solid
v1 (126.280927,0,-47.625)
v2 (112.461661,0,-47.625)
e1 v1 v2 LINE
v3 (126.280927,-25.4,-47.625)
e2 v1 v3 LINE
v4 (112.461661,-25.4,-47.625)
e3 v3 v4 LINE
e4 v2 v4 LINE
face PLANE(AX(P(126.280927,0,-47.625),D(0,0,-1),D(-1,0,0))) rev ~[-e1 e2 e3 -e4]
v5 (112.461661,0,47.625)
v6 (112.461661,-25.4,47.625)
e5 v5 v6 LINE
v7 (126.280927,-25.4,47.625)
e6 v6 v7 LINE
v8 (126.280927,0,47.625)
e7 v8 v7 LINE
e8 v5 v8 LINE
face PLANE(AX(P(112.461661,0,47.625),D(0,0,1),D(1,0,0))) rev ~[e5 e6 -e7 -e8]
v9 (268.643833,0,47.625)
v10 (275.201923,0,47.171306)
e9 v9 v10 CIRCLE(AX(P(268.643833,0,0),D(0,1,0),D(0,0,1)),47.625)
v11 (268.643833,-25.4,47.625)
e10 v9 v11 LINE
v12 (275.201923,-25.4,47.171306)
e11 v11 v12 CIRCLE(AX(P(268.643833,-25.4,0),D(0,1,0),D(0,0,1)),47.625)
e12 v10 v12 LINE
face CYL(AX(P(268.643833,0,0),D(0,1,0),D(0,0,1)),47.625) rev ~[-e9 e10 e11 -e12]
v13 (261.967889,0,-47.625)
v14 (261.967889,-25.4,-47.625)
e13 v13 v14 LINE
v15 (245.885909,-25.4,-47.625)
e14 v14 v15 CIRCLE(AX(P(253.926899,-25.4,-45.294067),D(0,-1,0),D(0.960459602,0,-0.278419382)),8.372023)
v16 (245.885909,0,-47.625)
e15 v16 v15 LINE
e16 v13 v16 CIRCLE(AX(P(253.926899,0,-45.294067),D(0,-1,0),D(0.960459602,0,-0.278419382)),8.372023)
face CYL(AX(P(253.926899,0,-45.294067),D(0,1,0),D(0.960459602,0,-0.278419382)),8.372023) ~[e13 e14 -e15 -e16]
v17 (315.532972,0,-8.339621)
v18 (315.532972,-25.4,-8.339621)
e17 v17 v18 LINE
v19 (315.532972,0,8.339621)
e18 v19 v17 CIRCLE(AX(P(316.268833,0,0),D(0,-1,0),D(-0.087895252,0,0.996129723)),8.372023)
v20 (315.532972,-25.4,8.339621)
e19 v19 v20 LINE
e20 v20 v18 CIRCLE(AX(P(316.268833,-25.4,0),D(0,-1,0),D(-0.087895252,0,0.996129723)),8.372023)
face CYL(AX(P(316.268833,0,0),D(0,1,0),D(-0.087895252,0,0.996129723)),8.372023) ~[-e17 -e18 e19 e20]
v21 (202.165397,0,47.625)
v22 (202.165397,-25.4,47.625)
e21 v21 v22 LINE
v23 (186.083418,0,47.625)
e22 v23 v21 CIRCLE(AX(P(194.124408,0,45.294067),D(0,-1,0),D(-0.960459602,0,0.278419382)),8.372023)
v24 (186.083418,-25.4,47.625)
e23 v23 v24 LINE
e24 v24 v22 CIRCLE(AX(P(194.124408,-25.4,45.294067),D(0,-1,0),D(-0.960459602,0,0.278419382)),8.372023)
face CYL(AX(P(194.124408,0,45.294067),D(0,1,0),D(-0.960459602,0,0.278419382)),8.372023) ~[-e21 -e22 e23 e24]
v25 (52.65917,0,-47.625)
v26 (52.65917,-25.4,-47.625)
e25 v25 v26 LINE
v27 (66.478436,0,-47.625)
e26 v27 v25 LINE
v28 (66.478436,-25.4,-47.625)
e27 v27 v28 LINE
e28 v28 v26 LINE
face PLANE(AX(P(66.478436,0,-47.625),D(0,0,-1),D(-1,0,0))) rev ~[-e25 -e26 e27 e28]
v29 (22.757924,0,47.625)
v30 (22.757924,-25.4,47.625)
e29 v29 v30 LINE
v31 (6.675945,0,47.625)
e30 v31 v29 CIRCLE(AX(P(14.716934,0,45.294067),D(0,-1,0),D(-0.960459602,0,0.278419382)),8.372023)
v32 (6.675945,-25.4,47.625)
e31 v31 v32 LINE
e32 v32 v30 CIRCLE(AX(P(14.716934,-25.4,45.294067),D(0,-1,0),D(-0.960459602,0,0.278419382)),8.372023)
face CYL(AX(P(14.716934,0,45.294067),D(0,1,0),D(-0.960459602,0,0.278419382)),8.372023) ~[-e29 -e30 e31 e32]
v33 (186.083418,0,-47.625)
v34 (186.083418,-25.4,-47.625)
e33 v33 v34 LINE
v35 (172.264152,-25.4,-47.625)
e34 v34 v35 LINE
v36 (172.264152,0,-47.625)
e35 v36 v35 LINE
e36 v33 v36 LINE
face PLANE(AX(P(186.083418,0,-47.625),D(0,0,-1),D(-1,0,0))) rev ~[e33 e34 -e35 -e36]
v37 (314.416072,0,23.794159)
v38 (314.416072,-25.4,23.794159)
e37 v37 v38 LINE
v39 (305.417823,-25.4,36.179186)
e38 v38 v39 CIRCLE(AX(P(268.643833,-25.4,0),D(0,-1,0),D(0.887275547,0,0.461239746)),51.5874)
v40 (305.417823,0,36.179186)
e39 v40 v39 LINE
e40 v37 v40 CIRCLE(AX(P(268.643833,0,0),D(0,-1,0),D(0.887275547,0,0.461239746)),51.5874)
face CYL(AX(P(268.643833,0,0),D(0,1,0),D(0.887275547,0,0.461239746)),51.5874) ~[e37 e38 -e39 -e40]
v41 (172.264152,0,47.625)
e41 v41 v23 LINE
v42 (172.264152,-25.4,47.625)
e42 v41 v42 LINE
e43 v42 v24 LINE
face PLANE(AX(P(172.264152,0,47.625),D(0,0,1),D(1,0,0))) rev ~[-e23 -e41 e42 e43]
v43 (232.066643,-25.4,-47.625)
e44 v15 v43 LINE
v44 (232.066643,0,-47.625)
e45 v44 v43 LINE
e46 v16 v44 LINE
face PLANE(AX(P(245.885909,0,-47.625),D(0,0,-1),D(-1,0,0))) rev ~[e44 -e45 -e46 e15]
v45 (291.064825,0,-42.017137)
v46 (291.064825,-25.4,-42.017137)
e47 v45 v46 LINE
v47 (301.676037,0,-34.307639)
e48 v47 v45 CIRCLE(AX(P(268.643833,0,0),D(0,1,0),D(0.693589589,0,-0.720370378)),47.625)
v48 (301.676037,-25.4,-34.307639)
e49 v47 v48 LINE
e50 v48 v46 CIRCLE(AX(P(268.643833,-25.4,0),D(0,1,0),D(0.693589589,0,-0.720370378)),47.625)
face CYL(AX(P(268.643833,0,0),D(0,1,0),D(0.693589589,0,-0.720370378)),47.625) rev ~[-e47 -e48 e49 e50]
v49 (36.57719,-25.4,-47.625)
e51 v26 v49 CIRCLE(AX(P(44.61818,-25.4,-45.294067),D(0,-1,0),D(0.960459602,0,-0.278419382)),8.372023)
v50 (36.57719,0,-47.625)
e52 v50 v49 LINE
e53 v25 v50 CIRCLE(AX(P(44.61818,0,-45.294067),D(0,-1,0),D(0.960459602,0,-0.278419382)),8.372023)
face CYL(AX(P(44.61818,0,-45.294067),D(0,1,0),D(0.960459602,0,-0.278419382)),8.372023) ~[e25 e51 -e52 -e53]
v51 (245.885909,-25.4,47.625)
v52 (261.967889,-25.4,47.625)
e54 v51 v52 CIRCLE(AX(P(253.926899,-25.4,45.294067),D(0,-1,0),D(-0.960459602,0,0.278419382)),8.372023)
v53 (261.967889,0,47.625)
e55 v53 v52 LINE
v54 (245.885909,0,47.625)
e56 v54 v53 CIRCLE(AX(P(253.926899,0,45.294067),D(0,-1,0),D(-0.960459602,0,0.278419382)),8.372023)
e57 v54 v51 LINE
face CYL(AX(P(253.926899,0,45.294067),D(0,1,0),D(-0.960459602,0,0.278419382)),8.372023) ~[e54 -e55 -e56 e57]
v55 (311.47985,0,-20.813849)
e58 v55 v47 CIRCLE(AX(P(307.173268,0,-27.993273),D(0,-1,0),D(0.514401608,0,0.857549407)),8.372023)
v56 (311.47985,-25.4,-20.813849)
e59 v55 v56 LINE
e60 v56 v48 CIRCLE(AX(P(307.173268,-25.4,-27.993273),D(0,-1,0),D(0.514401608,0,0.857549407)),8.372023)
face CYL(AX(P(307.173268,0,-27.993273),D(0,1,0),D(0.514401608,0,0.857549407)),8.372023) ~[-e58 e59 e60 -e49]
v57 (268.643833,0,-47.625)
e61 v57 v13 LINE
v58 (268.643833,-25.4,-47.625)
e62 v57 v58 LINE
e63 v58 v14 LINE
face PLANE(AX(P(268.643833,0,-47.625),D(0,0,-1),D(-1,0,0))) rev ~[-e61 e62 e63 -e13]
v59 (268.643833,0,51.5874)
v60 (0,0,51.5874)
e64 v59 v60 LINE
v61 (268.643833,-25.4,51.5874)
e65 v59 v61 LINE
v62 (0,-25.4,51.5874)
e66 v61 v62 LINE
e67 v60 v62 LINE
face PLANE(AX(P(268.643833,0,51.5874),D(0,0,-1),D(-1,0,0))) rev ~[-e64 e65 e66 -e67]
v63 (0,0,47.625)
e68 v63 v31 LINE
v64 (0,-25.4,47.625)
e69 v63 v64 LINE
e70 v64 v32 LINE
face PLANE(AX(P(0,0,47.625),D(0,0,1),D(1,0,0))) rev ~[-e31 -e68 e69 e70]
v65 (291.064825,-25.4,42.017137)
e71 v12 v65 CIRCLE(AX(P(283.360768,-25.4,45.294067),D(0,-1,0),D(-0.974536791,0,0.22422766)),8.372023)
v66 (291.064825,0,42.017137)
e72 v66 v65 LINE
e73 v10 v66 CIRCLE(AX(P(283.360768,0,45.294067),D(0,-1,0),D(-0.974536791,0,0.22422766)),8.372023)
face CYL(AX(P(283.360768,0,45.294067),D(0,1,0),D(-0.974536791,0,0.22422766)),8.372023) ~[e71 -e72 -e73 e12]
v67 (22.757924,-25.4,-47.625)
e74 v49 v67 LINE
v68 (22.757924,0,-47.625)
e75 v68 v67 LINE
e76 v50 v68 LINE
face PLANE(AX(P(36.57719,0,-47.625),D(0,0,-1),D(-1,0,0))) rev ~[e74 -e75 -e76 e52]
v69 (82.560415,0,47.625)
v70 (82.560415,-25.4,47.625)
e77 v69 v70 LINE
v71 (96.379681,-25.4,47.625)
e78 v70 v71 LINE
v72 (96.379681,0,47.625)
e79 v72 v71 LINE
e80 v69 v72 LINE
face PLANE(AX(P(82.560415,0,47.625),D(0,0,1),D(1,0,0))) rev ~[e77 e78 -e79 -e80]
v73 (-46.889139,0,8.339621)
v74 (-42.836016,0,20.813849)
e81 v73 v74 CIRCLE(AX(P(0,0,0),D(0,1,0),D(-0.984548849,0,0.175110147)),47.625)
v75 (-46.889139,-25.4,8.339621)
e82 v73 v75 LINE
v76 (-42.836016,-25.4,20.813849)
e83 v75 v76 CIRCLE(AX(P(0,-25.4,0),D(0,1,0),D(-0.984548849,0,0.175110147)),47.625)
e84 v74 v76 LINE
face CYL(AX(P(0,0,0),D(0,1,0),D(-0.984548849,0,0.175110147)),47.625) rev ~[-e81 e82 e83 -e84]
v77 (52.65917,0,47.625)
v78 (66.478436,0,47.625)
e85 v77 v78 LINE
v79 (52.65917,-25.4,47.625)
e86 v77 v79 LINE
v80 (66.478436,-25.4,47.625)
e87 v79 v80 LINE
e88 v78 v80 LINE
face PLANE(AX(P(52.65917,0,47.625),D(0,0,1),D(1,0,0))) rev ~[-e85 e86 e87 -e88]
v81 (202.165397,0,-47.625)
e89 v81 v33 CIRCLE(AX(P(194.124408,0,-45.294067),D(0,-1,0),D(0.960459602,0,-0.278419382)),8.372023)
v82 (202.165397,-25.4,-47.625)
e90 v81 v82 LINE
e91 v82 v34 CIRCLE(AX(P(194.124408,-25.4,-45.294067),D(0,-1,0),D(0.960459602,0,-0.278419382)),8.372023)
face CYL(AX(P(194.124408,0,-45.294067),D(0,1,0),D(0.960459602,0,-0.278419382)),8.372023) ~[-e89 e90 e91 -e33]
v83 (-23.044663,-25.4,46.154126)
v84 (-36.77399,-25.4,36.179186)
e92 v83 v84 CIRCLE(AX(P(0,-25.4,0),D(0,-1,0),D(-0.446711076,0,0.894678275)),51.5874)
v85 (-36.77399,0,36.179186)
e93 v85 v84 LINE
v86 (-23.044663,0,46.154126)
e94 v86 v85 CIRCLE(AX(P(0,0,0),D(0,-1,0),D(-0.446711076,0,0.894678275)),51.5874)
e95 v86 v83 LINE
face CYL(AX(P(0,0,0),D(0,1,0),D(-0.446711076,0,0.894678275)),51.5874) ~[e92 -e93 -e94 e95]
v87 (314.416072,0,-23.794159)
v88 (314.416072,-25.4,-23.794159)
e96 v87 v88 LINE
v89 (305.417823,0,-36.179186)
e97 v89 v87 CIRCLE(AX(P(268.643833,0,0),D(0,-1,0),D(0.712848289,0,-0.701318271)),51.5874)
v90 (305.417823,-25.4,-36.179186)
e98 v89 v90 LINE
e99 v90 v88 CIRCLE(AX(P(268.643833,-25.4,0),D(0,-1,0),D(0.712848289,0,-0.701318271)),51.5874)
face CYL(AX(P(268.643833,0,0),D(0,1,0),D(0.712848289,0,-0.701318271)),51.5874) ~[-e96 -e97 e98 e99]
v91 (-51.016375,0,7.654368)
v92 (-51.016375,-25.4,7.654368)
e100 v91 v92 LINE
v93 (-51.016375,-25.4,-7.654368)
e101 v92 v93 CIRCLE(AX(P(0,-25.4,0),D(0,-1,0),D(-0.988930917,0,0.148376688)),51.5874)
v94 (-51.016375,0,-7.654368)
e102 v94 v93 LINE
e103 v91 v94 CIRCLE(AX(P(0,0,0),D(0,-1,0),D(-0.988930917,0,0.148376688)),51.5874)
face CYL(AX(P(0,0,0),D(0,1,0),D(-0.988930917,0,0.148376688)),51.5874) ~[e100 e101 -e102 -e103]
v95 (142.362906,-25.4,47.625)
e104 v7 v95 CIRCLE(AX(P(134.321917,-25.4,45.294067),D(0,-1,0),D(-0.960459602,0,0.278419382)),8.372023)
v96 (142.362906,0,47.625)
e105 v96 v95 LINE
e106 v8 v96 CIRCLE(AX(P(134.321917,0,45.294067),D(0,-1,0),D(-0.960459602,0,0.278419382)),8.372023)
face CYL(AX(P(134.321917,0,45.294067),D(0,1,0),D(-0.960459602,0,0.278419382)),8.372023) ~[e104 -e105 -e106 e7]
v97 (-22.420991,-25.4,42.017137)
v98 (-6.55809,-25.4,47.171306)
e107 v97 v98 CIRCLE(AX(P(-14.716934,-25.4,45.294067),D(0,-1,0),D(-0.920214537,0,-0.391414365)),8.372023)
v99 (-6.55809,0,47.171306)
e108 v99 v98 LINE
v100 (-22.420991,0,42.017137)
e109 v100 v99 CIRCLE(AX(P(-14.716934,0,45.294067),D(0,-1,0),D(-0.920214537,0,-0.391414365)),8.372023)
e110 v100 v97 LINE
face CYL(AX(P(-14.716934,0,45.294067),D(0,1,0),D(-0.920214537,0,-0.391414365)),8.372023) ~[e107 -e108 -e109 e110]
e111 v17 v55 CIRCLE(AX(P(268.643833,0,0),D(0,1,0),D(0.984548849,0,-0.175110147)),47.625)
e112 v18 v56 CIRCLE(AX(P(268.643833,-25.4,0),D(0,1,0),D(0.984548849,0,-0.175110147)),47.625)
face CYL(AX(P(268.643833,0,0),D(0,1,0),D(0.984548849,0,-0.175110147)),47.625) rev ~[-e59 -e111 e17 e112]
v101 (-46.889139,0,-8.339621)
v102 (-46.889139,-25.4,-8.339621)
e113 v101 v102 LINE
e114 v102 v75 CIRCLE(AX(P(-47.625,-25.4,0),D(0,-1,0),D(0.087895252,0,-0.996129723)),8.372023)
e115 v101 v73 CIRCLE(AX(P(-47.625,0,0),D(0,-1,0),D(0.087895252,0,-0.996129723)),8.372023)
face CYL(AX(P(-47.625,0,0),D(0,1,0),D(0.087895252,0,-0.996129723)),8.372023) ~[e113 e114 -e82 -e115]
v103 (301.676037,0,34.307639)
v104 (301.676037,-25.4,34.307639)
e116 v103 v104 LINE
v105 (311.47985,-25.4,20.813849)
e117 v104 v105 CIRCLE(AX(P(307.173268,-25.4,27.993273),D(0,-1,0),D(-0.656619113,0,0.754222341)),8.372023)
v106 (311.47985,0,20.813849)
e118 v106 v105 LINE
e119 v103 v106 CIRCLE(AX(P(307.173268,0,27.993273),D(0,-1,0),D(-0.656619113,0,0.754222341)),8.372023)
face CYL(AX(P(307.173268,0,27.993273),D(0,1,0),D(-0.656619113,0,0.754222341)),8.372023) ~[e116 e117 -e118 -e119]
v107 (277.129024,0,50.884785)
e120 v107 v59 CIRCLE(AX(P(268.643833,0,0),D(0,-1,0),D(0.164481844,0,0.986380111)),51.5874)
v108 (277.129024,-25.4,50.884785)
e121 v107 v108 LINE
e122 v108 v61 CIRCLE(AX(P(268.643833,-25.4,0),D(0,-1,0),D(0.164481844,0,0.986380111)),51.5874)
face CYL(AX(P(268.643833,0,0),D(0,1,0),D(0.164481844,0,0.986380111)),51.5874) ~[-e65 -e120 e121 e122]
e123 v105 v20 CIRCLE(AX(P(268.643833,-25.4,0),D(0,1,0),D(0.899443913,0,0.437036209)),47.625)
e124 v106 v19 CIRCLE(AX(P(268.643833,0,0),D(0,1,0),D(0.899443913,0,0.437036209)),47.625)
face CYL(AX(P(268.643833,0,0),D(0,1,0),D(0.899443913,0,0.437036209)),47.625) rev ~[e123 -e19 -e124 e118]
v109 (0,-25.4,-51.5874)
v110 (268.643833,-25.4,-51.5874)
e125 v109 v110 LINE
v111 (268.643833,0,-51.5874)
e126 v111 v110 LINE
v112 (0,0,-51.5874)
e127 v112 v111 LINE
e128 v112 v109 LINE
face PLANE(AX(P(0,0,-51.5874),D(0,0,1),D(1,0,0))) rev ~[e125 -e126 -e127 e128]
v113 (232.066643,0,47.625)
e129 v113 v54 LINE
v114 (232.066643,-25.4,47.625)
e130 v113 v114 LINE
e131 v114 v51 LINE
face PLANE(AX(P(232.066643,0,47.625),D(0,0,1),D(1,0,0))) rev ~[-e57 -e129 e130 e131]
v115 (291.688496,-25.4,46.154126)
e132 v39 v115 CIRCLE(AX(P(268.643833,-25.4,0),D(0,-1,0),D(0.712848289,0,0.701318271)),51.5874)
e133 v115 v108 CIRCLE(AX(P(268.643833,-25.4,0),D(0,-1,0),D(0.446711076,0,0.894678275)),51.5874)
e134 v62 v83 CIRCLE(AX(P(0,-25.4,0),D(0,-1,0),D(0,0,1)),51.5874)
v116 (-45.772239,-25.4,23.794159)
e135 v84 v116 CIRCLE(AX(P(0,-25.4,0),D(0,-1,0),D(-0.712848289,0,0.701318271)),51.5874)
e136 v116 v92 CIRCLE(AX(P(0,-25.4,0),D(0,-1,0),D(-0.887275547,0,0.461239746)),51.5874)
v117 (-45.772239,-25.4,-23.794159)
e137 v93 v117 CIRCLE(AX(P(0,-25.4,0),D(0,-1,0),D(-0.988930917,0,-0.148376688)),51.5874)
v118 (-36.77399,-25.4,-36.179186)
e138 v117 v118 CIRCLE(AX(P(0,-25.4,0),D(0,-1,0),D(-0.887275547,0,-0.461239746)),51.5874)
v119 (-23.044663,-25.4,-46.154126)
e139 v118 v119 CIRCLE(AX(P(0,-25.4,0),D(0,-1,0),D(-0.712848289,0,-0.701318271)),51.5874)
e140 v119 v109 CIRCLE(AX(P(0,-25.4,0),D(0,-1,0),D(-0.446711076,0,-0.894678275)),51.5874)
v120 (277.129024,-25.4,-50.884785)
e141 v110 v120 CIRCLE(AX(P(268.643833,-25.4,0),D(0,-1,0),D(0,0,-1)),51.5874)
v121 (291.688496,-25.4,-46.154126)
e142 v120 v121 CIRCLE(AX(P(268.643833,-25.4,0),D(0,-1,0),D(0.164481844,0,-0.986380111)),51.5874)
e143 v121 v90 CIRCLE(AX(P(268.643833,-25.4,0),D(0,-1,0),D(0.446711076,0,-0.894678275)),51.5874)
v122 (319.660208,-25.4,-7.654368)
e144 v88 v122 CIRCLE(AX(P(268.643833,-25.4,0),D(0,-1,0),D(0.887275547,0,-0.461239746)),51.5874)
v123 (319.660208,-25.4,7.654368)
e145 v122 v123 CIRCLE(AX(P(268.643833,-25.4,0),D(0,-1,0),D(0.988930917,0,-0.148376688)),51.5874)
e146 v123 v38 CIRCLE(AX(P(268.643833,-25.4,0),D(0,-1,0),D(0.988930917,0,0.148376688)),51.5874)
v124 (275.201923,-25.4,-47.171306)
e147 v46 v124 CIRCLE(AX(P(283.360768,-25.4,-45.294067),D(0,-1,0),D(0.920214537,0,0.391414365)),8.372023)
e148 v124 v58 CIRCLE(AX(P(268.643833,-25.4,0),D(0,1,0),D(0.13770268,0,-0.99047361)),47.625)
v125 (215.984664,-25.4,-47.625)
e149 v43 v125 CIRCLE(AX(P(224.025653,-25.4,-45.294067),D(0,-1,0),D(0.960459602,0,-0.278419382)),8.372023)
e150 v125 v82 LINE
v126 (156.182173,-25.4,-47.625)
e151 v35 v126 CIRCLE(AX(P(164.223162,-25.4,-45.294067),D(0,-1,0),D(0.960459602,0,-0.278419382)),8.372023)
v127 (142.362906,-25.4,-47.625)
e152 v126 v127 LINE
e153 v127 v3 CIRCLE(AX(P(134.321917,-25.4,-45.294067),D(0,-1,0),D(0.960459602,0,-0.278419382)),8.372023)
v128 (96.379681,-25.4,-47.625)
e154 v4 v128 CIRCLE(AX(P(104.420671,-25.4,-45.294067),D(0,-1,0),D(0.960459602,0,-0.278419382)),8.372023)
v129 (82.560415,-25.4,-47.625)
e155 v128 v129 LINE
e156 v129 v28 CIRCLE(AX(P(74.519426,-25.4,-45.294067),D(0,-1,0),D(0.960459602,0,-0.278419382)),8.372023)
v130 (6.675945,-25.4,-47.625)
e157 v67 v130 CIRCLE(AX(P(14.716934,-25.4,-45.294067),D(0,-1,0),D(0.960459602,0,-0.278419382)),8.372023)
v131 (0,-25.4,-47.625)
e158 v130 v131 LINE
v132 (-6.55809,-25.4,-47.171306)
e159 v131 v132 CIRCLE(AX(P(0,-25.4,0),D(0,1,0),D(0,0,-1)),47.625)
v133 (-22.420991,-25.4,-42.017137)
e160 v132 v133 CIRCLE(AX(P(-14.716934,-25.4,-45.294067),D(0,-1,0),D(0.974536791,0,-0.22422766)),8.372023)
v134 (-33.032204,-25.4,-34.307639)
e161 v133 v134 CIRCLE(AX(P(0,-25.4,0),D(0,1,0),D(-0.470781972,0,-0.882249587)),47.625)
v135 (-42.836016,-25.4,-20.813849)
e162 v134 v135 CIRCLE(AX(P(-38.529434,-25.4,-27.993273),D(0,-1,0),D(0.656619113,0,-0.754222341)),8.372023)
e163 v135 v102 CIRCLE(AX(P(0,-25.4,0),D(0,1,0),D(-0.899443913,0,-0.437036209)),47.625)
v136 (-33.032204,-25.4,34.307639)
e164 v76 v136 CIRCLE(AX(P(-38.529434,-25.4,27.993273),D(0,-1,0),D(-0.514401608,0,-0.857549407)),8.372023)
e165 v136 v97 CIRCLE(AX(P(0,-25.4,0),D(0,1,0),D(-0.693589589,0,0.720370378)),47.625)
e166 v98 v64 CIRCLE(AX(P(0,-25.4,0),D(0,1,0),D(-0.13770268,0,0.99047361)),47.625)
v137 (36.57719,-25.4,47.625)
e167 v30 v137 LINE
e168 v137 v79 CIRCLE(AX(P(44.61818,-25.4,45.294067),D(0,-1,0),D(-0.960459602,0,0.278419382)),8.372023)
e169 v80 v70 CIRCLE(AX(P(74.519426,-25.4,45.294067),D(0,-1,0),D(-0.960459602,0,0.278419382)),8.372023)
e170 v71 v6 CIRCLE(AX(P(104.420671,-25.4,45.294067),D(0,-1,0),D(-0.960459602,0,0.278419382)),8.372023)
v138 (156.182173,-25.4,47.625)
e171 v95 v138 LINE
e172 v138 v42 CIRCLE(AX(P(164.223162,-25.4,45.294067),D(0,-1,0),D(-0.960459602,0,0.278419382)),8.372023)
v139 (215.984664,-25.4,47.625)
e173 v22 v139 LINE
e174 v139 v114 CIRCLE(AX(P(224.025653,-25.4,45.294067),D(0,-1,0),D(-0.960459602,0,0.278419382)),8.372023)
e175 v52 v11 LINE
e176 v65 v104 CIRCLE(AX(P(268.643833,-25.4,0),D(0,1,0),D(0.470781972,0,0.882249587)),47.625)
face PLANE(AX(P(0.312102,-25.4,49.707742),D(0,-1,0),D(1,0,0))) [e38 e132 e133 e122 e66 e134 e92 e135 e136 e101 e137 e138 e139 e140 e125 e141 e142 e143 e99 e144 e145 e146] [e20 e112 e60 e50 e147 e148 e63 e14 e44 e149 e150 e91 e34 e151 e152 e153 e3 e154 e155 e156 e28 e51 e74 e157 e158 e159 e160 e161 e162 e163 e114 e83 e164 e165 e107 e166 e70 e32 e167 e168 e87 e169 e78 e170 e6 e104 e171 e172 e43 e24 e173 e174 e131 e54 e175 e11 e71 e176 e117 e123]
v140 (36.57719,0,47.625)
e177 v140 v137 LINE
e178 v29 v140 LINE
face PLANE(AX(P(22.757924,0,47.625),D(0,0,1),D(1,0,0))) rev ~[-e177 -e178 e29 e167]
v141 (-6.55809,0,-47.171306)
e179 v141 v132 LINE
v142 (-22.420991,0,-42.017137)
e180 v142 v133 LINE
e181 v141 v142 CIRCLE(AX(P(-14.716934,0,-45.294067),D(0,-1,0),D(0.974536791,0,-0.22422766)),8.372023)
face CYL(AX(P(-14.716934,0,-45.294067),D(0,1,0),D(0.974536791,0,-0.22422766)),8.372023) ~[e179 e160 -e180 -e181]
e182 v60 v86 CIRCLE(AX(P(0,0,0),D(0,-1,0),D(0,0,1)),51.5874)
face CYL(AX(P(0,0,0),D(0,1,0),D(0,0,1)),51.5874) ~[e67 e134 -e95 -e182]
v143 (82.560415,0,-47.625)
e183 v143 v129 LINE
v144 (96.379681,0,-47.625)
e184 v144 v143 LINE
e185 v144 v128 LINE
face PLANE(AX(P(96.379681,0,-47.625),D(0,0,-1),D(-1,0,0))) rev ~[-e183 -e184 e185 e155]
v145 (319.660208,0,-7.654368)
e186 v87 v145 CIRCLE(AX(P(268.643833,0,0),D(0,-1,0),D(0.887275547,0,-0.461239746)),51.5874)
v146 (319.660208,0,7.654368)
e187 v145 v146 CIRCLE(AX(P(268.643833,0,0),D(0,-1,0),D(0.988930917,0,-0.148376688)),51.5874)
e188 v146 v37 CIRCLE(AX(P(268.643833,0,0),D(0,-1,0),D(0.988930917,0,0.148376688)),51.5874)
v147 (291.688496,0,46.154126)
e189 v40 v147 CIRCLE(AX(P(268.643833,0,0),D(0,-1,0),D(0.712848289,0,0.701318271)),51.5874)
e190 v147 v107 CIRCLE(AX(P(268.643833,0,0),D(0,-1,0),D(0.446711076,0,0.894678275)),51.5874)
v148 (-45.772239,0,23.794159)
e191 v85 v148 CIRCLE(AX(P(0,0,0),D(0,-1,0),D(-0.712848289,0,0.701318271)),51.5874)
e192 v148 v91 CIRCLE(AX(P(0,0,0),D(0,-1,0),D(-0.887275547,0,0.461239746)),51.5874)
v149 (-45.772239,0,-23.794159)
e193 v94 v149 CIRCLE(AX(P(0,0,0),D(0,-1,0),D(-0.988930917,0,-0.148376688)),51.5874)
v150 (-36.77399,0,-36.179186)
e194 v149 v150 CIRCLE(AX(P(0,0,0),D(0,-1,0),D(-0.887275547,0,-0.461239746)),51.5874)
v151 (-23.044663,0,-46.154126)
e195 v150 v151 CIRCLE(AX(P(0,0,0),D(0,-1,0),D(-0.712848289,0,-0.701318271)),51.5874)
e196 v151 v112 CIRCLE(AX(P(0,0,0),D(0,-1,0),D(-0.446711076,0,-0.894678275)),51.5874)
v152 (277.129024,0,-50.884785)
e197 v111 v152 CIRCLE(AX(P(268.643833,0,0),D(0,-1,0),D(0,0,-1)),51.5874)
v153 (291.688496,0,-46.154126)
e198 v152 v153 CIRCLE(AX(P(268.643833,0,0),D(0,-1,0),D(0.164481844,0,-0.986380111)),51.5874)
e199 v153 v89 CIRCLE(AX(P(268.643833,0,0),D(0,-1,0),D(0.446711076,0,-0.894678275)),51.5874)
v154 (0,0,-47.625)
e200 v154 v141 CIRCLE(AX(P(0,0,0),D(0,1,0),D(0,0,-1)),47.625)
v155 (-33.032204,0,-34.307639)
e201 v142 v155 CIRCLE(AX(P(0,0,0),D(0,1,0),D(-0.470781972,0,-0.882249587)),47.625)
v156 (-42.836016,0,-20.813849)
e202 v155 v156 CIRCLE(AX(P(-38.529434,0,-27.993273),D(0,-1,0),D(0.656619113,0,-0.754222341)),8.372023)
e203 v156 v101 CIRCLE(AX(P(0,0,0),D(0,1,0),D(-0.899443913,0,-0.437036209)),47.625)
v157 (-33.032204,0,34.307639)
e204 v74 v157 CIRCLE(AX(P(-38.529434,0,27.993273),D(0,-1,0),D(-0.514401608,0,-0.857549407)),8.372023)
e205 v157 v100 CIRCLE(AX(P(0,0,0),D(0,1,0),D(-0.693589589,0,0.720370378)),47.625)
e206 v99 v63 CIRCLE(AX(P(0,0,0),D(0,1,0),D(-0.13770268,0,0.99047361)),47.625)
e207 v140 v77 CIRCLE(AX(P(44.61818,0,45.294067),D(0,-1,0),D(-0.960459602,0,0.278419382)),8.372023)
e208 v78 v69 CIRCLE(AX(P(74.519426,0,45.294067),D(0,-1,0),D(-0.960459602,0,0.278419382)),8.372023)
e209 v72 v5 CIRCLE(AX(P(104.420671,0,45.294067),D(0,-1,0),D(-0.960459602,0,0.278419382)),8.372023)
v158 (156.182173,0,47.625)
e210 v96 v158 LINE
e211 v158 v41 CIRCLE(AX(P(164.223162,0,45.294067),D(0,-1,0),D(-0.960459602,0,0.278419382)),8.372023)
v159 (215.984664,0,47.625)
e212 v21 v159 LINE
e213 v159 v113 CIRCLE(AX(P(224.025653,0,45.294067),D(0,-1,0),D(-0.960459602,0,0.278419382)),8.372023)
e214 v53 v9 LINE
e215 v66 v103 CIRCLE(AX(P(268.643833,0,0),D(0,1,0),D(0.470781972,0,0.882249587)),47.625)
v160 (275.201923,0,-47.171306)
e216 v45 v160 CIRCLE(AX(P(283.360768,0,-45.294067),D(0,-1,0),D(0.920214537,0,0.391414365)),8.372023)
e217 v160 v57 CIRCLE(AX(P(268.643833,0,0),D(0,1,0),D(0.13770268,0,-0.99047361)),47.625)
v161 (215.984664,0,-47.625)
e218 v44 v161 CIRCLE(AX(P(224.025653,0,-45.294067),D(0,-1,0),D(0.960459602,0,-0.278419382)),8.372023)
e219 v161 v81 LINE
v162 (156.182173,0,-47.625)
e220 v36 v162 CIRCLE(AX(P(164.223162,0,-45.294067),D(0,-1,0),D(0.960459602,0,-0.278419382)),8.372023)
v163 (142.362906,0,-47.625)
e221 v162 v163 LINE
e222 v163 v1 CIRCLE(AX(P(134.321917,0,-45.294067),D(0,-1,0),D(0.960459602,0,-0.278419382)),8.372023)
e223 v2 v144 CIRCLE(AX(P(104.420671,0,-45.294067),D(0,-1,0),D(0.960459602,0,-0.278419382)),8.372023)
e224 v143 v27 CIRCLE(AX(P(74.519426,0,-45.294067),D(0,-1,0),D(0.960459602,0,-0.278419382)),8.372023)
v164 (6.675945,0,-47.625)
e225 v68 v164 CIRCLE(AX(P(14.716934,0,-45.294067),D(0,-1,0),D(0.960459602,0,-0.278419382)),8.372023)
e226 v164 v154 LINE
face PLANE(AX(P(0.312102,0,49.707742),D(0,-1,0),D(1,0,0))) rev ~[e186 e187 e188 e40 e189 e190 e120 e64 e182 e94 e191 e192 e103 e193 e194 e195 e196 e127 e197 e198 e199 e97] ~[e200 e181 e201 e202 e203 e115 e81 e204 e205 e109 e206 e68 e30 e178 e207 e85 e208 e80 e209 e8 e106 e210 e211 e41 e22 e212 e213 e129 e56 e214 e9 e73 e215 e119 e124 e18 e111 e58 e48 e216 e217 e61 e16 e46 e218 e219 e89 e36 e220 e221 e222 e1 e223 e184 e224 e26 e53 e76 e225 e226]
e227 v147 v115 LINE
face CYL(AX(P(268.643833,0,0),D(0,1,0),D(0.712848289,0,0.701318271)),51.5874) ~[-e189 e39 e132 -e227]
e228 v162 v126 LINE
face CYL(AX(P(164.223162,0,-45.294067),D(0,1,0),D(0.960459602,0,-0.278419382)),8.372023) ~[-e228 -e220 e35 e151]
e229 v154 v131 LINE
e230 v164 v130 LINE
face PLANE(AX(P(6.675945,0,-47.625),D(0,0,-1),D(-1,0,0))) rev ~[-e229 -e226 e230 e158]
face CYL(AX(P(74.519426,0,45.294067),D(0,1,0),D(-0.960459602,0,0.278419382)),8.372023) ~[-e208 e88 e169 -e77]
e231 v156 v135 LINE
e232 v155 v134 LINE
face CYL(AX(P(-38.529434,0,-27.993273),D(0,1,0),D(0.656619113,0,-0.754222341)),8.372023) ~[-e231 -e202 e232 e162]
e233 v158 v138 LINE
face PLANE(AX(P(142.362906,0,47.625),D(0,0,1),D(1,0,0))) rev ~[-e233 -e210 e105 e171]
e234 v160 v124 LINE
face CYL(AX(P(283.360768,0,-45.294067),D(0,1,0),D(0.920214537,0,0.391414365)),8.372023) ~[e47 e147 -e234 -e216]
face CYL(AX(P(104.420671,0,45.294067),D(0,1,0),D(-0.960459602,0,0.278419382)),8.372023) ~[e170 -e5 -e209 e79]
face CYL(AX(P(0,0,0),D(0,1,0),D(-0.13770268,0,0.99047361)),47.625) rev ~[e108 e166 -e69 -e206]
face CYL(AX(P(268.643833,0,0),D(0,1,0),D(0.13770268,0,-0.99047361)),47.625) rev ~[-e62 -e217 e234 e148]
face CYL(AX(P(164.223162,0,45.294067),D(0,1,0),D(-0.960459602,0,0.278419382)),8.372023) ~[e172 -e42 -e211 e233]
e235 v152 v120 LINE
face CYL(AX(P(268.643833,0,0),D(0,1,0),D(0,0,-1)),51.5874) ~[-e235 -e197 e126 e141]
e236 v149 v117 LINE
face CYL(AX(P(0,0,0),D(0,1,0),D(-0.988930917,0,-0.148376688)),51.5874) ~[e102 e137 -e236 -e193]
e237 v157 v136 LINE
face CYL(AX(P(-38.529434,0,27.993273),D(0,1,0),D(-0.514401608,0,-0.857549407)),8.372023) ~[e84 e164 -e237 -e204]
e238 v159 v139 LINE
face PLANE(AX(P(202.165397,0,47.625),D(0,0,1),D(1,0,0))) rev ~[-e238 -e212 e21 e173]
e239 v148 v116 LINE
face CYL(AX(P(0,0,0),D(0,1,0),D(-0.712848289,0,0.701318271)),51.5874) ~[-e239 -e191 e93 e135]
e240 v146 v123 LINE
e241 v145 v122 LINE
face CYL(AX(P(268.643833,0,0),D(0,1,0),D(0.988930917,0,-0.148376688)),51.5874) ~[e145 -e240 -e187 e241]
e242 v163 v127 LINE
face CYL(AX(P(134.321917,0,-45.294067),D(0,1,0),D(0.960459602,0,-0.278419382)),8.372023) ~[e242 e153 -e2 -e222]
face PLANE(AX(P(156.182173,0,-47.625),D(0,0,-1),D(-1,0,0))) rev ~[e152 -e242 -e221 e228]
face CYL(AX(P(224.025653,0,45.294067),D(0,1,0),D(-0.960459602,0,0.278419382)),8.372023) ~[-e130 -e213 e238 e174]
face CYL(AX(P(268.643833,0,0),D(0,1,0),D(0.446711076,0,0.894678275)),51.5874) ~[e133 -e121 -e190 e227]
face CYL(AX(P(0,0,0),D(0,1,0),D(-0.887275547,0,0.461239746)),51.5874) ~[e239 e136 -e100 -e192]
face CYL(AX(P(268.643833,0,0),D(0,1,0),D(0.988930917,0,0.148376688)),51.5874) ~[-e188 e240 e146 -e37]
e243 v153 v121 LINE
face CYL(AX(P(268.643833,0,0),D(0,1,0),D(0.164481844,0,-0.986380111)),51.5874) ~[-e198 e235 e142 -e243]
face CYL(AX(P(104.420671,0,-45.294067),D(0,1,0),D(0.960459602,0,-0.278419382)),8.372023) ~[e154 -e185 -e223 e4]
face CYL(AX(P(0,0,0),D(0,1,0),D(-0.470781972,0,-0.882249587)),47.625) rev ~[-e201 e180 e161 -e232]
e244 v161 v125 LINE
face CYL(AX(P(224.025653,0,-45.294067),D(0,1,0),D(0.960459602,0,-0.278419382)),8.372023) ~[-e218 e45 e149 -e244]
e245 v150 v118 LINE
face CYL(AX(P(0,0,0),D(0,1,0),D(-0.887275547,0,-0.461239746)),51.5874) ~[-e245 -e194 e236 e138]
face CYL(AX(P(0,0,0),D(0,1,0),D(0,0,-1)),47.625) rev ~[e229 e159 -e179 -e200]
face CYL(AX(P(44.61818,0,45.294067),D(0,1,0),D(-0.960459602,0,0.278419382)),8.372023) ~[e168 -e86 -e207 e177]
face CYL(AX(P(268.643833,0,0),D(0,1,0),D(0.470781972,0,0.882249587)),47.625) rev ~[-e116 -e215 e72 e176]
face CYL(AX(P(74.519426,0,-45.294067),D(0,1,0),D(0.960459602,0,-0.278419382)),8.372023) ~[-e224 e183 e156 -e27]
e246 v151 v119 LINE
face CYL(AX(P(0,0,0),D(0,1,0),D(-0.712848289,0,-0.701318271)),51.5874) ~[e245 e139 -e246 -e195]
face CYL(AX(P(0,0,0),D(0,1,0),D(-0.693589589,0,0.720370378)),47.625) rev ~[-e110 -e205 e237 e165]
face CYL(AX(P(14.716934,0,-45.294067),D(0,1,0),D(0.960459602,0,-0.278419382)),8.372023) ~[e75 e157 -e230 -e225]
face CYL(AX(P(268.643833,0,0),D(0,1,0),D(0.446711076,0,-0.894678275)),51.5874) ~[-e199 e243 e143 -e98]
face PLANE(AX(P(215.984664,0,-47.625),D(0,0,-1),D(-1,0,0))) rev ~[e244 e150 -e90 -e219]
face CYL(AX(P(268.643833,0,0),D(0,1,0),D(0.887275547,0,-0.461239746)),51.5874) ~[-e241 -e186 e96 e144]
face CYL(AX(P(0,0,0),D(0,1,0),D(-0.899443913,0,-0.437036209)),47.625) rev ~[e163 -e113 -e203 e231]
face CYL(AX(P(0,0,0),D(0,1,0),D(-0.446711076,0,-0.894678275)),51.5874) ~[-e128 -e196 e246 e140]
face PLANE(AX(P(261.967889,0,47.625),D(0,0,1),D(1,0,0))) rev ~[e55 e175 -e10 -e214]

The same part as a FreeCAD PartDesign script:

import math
import FreeCAD as App
import Part
import Sketcher
from FreeCAD import Vector
Q = App.Units.Quantity

doc = App.newDocument("Part")
body = doc.addObject("PartDesign::Body", "Body")

sketch1 = body.newObject("Sketcher::SketchObject", "Sketch")
sketch1.AttachmentSupport = (doc.getObject("XZ_Plane"), [""])
sketch1.MapMode = "FlatFace"
sketch1.addGeometry([
    Part.ArcOfCircle(Part.Circle(Vector(269, 0, 0), Vector(0, 0, 1), 52), math.radians(-80.53), math.radians(-63.47)),
    Part.ArcOfCircle(Part.Circle(Vector(269, 0, 0), Vector(0, 0, 1), 52), math.radians(-63.47), math.radians(-44.53)),
    Part.ArcOfCircle(Part.Circle(Vector(269, 0, 0), Vector(0, 0, 1), 52), math.radians(-44.53), math.radians(-27.47)),
    Part.ArcOfCircle(Part.Circle(Vector(269, 0, 0), Vector(0, 0, 1), 52), math.radians(-27.47), math.radians(-8.53)),
    Part.ArcOfCircle(Part.Circle(Vector(269, 0, 0), Vector(0, 0, 1), 52), math.radians(-8.53), math.radians(8.53)),
    Part.ArcOfCircle(Part.Circle(Vector(269, 0, 0), Vector(0, 0, 1), 52), math.radians(8.53), math.radians(27.47)),
    Part.ArcOfCircle(Part.Circle(Vector(269, 0, 0), Vector(0, 0, 1), 52), math.radians(27.47), math.radians(44.53)),
    Part.ArcOfCircle(Part.Circle(Vector(269, 0, 0), Vector(0, 0, 1), 52), math.radians(44.53), math.radians(63.47)),
    Part.ArcOfCircle(Part.Circle(Vector(269, 0, 0), Vector(0, 0, 1), 52), math.radians(63.47), math.radians(80.53)),
    Part.ArcOfCircle(Part.Circle(Vector(269, 0, 0), Vector(0, 0, 1), 52), math.radians(80.53), math.radians(90)),
    Part.LineSegment(Vector(269, 52, 0), Vector(0, 52, 0)),
    Part.ArcOfCircle(Part.Circle(Vector(0, 0, 0), Vector(0, 0, 1), 52), math.radians(90), math.radians(117)),
    Part.ArcOfCircle(Part.Circle(Vector(0, 0, 0), Vector(0, 0, 1), 52), math.radians(116.53), math.radians(135.47)),
    Part.ArcOfCircle(Part.Circle(Vector(0, 0, 0), Vector(0, 0, 1), 52), math.radians(135.47), math.radians(152.53)),
    Part.ArcOfCircle(Part.Circle(Vector(0, 0, 0), Vector(0, 0, 1), 52), math.radians(152.53), math.radians(171.47)),
    Part.ArcOfCircle(Part.Circle(Vector(0, 0, 0), Vector(0, 0, 1), 52), math.radians(171.47), math.radians(188.53)),
    Part.ArcOfCircle(Part.Circle(Vector(0, 0, 0), Vector(0, 0, 1), 52), math.radians(-171.47), math.radians(-152.53)),
    Part.ArcOfCircle(Part.Circle(Vector(0, 0, 0), Vector(0, 0, 1), 52), math.radians(-152.53), math.radians(-135.47)),
    Part.ArcOfCircle(Part.Circle(Vector(0, 0, 0), Vector(0, 0, 1), 52), math.radians(-135.47), math.radians(-116.53)),
    Part.ArcOfCircle(Part.Circle(Vector(0, 0, 0), Vector(0, 0, 1), 52), math.radians(-117), math.radians(-90)),
    Part.LineSegment(Vector(0, -52, 0), Vector(269, -52, 0)),
    Part.ArcOfCircle(Part.Circle(Vector(269, 0, 0), Vector(0, 0, 1), 52), math.radians(-90), math.radians(-80.53)),
    Part.ArcOfCircle(Part.Circle(Vector(0, 0, 0), Vector(0, 0, 1), 48), math.radians(90), math.radians(97.91)),
    Part.LineSegment(Vector(0, 48, 0), Vector(7, 48, 0)),
    Part.ArcOfCircle(Part.Circle(Vector(15, 45, 0), Vector(0, 0, 1), 8), math.radians(164), math.radians(376)),
    Part.LineSegment(Vector(23, 48, 0), Vector(37, 48, 0)),
    Part.ArcOfCircle(Part.Circle(Vector(45, 45, 0), Vector(0, 0, 1), 8), math.radians(164), math.radians(376)),
    Part.LineSegment(Vector(53, 48, 0), Vector(66, 48, 0)),
    Part.ArcOfCircle(Part.Circle(Vector(75, 45, 0), Vector(0, 0, 1), 8), math.radians(164), math.radians(376)),
    Part.LineSegment(Vector(83, 48, 0), Vector(96, 48, 0)),
    Part.ArcOfCircle(Part.Circle(Vector(104, 45, 0), Vector(0, 0, 1), 8), math.radians(164), math.radians(376)),
    Part.LineSegment(Vector(112, 48, 0), Vector(126, 48, 0)),
    Part.ArcOfCircle(Part.Circle(Vector(134, 45, 0), Vector(0, 0, 1), 8), math.radians(164), math.radians(376)),
    Part.LineSegment(Vector(142, 48, 0), Vector(156, 48, 0)),
    Part.ArcOfCircle(Part.Circle(Vector(164, 45, 0), Vector(0, 0, 1), 8), math.radians(164), math.radians(376)),
    Part.LineSegment(Vector(172, 48, 0), Vector(186, 48, 0)),
    Part.ArcOfCircle(Part.Circle(Vector(194, 45, 0), Vector(0, 0, 1), 8), math.radians(164), math.radians(376)),
    Part.LineSegment(Vector(202, 48, 0), Vector(216, 48, 0)),
    Part.ArcOfCircle(Part.Circle(Vector(224, 45, 0), Vector(0, 0, 1), 8), math.radians(164), math.radians(376)),
    Part.LineSegment(Vector(232, 48, 0), Vector(246, 48, 0)),
    Part.ArcOfCircle(Part.Circle(Vector(254, 45, 0), Vector(0, 0, 1), 8), math.radians(164), math.radians(376)),
    Part.LineSegment(Vector(262, 48, 0), Vector(269, 48, 0)),
    Part.ArcOfCircle(Part.Circle(Vector(269, 0, 0), Vector(0, 0, 1), 48), math.radians(82.09), math.radians(90)),
    Part.ArcOfCircle(Part.Circle(Vector(283, 45, 0), Vector(0, 0, 1), 8), math.radians(167), math.radians(337)),
    Part.ArcOfCircle(Part.Circle(Vector(269, 0, 0), Vector(0, 0, 1), 48), math.radians(46.09), math.radians(61.91)),
    Part.ArcOfCircle(Part.Circle(Vector(307, 28, 0), Vector(0, 0, 1), 8), math.radians(131), math.radians(301)),
    Part.ArcOfCircle(Part.Circle(Vector(269, 0, 0), Vector(0, 0, 1), 48), math.radians(10.09), math.radians(25.91)),
    Part.ArcOfCircle(Part.Circle(Vector(316, 0, 0), Vector(0, 0, 1), 8), math.radians(95), math.radians(265)),
    Part.ArcOfCircle(Part.Circle(Vector(269, 0, 0), Vector(0, 0, 1), 48), math.radians(-25.91), math.radians(-10.09)),
    Part.ArcOfCircle(Part.Circle(Vector(307, -28, 0), Vector(0, 0, 1), 8), math.radians(59), math.radians(229)),
    Part.ArcOfCircle(Part.Circle(Vector(269, 0, 0), Vector(0, 0, 1), 48), math.radians(-61.91), math.radians(-46.09)),
    Part.ArcOfCircle(Part.Circle(Vector(283, -45, 0), Vector(0, 0, 1), 8), math.radians(23), math.radians(193)),
    Part.ArcOfCircle(Part.Circle(Vector(269, 0, 0), Vector(0, 0, 1), 48), math.radians(-90), math.radians(-82.09)),
    Part.LineSegment(Vector(269, -48, 0), Vector(262, -48, 0)),
    Part.ArcOfCircle(Part.Circle(Vector(254, -45, 0), Vector(0, 0, 1), 8), math.radians(-16), math.radians(196)),
    Part.LineSegment(Vector(246, -48, 0), Vector(232, -48, 0)),
    Part.ArcOfCircle(Part.Circle(Vector(224, -45, 0), Vector(0, 0, 1), 8), math.radians(-16), math.radians(196)),
    Part.LineSegment(Vector(216, -48, 0), Vector(202, -48, 0)),
    Part.ArcOfCircle(Part.Circle(Vector(194, -45, 0), Vector(0, 0, 1), 8), math.radians(-16), math.radians(196)),
    Part.LineSegment(Vector(186, -48, 0), Vector(172, -48, 0)),
    Part.ArcOfCircle(Part.Circle(Vector(164, -45, 0), Vector(0, 0, 1), 8), math.radians(-16), math.radians(196)),
    Part.LineSegment(Vector(156, -48, 0), Vector(142, -48, 0)),
    Part.ArcOfCircle(Part.Circle(Vector(134, -45, 0), Vector(0, 0, 1), 8), math.radians(-16), math.radians(196)),
    Part.LineSegment(Vector(126, -48, 0), Vector(112, -48, 0)),
    Part.ArcOfCircle(Part.Circle(Vector(104, -45, 0), Vector(0, 0, 1), 8), math.radians(-16), math.radians(196)),
    Part.LineSegment(Vector(96, -48, 0), Vector(83, -48, 0)),
    Part.ArcOfCircle(Part.Circle(Vector(75, -45, 0), Vector(0, 0, 1), 8), math.radians(-16), math.radians(196)),
    Part.LineSegment(Vector(66, -48, 0), Vector(53, -48, 0)),
    Part.ArcOfCircle(Part.Circle(Vector(45, -45, 0), Vector(0, 0, 1), 8), math.radians(-16), math.radians(196)),
    Part.LineSegment(Vector(37, -48, 0), Vector(23, -48, 0)),
    Part.ArcOfCircle(Part.Circle(Vector(15, -45, 0), Vector(0, 0, 1), 8), math.radians(-16), math.radians(196)),
    Part.LineSegment(Vector(7, -48, 0), Vector(0, -48, 0)),
    Part.ArcOfCircle(Part.Circle(Vector(0, 0, 0), Vector(0, 0, 1), 48), math.radians(-97.91), math.radians(-90)),
    Part.ArcOfCircle(Part.Circle(Vector(-15, -45, 0), Vector(0, 0, 1), 8), math.radians(-13), math.radians(157)),
    Part.ArcOfCircle(Part.Circle(Vector(0, 0, 0), Vector(0, 0, 1), 48), math.radians(-133.91), math.radians(-118.09)),
    Part.ArcOfCircle(Part.Circle(Vector(-39, -28, 0), Vector(0, 0, 1), 8), math.radians(-49), math.radians(121)),
    Part.ArcOfCircle(Part.Circle(Vector(0, 0, 0), Vector(0, 0, 1), 48), math.radians(-169.91), math.radians(-154.09)),
    Part.ArcOfCircle(Part.Circle(Vector(-48, 0, 0), Vector(0, 0, 1), 8), math.radians(-85), math.radians(85)),
    Part.ArcOfCircle(Part.Circle(Vector(0, 0, 0), Vector(0, 0, 1), 48), math.radians(154.09), math.radians(169.91)),
    Part.ArcOfCircle(Part.Circle(Vector(-39, 28, 0), Vector(0, 0, 1), 8), math.radians(-121), math.radians(49)),
    Part.ArcOfCircle(Part.Circle(Vector(0, 0, 0), Vector(0, 0, 1), 48), math.radians(118.09), math.radians(133.91)),
    Part.ArcOfCircle(Part.Circle(Vector(-15, 45, 0), Vector(0, 0, 1), 8), math.radians(-157), math.radians(13)),
], False)
sketch1.addConstraint([
    Sketcher.Constraint("Tangent", 0, 2, 1, 1),
    Sketcher.Constraint("Tangent", 1, 2, 2, 1),
    Sketcher.Constraint("Tangent", 2, 2, 3, 1),
    Sketcher.Constraint("Tangent", 3, 2, 4, 1),
    Sketcher.Constraint("Tangent", 4, 2, 5, 1),
    Sketcher.Constraint("Tangent", 5, 2, 6, 1),
    Sketcher.Constraint("Tangent", 6, 2, 7, 1),
    Sketcher.Constraint("Tangent", 7, 2, 8, 1),
    Sketcher.Constraint("Tangent", 8, 2, 9, 1),
    Sketcher.Constraint("Tangent", 9, 2, 10, 1),
    Sketcher.Constraint("Tangent", 10, 2, 11, 1),
    Sketcher.Constraint("Tangent", 11, 2, 12, 1),
    Sketcher.Constraint("Tangent", 12, 2, 13, 1),
    Sketcher.Constraint("Tangent", 13, 2, 14, 1),
    Sketcher.Constraint("Tangent", 14, 2, 15, 1),
    Sketcher.Constraint("Tangent", 15, 2, 16, 1),
    Sketcher.Constraint("Tangent", 16, 2, 17, 1),
    Sketcher.Constraint("Tangent", 17, 2, 18, 1),
    Sketcher.Constraint("Tangent", 18, 2, 19, 1),
    Sketcher.Constraint("Tangent", 19, 2, 20, 1),
    Sketcher.Constraint("Tangent", 20, 2, 21, 1),
    Sketcher.Constraint("Tangent", 21, 2, 0, 1),
    Sketcher.Constraint("Tangent", 22, 1, 23, 1),
    Sketcher.Constraint("Coincident", 23, 2, 24, 1),
    Sketcher.Constraint("Coincident", 24, 2, 25, 1),
    Sketcher.Constraint("Coincident", 25, 2, 26, 1),
    Sketcher.Constraint("Coincident", 26, 2, 27, 1),
    Sketcher.Constraint("Coincident", 27, 2, 28, 1),
    Sketcher.Constraint("Coincident", 28, 2, 29, 1),
    Sketcher.Constraint("Coincident", 29, 2, 30, 1),
    Sketcher.Constraint("Coincident", 30, 2, 31, 1),
    Sketcher.Constraint("Coincident", 31, 2, 32, 1),
    Sketcher.Constraint("Coincident", 32, 2, 33, 1),
    Sketcher.Constraint("Coincident", 33, 2, 34, 1),
    Sketcher.Constraint("Coincident", 34, 2, 35, 1),
    Sketcher.Constraint("Coincident", 35, 2, 36, 1),
    Sketcher.Constraint("Coincident", 36, 2, 37, 1),
    Sketcher.Constraint("Coincident", 37, 2, 38, 1),
    Sketcher.Constraint("Coincident", 38, 2, 39, 1),
    Sketcher.Constraint("Coincident", 39, 2, 40, 1),
    Sketcher.Constraint("Coincident", 40, 2, 41, 1),
    Sketcher.Constraint("Tangent", 41, 2, 42, 2),
    Sketcher.Constraint("Coincident", 42, 1, 43, 1),
    Sketcher.Constraint("Coincident", 43, 2, 44, 2),
    Sketcher.Constraint("Coincident", 44, 1, 45, 1),
    Sketcher.Constraint("Coincident", 45, 2, 46, 2),
    Sketcher.Constraint("Coincident", 46, 1, 47, 1),
    Sketcher.Constraint("Coincident", 47, 2, 48, 2),
    Sketcher.Constraint("Coincident", 48, 1, 49, 1),
    Sketcher.Constraint("Coincident", 49, 2, 50, 2),
    Sketcher.Constraint("Coincident", 50, 1, 51, 1),
    Sketcher.Constraint("Coincident", 51, 2, 52, 2),
    Sketcher.Constraint("Tangent", 52, 1, 53, 1),
    Sketcher.Constraint("Coincident", 53, 2, 54, 1),
    Sketcher.Constraint("Coincident", 54, 2, 55, 1),
    Sketcher.Constraint("Coincident", 55, 2, 56, 1),
    Sketcher.Constraint("Coincident", 56, 2, 57, 1),
    Sketcher.Constraint("Coincident", 57, 2, 58, 1),
    Sketcher.Constraint("Coincident", 58, 2, 59, 1),
    Sketcher.Constraint("Coincident", 59, 2, 60, 1),
    Sketcher.Constraint("Coincident", 60, 2, 61, 1),
    Sketcher.Constraint("Coincident", 61, 2, 62, 1),
    Sketcher.Constraint("Coincident", 62, 2, 63, 1),
    Sketcher.Constraint("Coincident", 63, 2, 64, 1),
    Sketcher.Constraint("Coincident", 64, 2, 65, 1),
    Sketcher.Constraint("Coincident", 65, 2, 66, 1),
    Sketcher.Constraint("Coincident", 66, 2, 67, 1),
    Sketcher.Constraint("Coincident", 67, 2, 68, 1),
    Sketcher.Constraint("Coincident", 68, 2, 69, 1),
    Sketcher.Constraint("Coincident", 69, 2, 70, 1),
    Sketcher.Constraint("Coincident", 70, 2, 71, 1),
    Sketcher.Constraint("Tangent", 71, 2, 72, 2),
    Sketcher.Constraint("Coincident", 72, 1, 73, 1),
    Sketcher.Constraint("Coincident", 73, 2, 74, 2),
    Sketcher.Constraint("Coincident", 74, 1, 75, 1),
    Sketcher.Constraint("Coincident", 75, 2, 76, 2),
    Sketcher.Constraint("Coincident", 76, 1, 77, 1),
    Sketcher.Constraint("Coincident", 77, 2, 78, 2),
    Sketcher.Constraint("Coincident", 78, 1, 79, 1),
    Sketcher.Constraint("Coincident", 79, 2, 80, 2),
    Sketcher.Constraint("Coincident", 80, 1, 81, 1),
    Sketcher.Constraint("Coincident", 81, 2, 22, 2),
    Sketcher.Constraint("Horizontal", 10),
    Sketcher.Constraint("Horizontal", 20),
    Sketcher.Constraint("Horizontal", 23),
    Sketcher.Constraint("Horizontal", 25),
    Sketcher.Constraint("Horizontal", 27),
    Sketcher.Constraint("Horizontal", 29),
    Sketcher.Constraint("Horizontal", 31),
    Sketcher.Constraint("Horizontal", 33),
    Sketcher.Constraint("Horizontal", 35),
    Sketcher.Constraint("Horizontal", 37),
    Sketcher.Constraint("Horizontal", 39),
    Sketcher.Constraint("Horizontal", 41),
    Sketcher.Constraint("Horizontal", 53),
    Sketcher.Constraint("Horizontal", 55),
    Sketcher.Constraint("Horizontal", 57),
    Sketcher.Constraint("Horizontal", 59),
    Sketcher.Constraint("Horizontal", 61),
    Sketcher.Constraint("Horizontal", 63),
    Sketcher.Constraint("Horizontal", 65),
    Sketcher.Constraint("Horizontal", 67),
    Sketcher.Constraint("Horizontal", 69),
    Sketcher.Constraint("Horizontal", 71),
    Sketcher.Constraint("Coincident", 11, 3, -1, 1),
    Sketcher.Constraint("Coincident", 13, 3, -1, 1),
    Sketcher.Constraint("Coincident", 15, 3, -1, 1),
    Sketcher.Constraint("Coincident", 17, 3, -1, 1),
    Sketcher.Constraint("Coincident", 19, 3, -1, 1),
    Sketcher.Constraint("Coincident", 22, 3, -1, 1),
    Sketcher.Constraint("Coincident", 72, 3, -1, 1),
    Sketcher.Constraint("Coincident", 74, 3, -1, 1),
    Sketcher.Constraint("Coincident", 76, 3, -1, 1),
    Sketcher.Constraint("Coincident", 78, 3, -1, 1),
    Sketcher.Constraint("Coincident", 80, 3, -1, 1),
    Sketcher.Constraint("Coincident", 2, 3, 0, 3),
    Sketcher.Constraint("Coincident", 4, 3, 0, 3),
    Sketcher.Constraint("Coincident", 6, 3, 0, 3),
    Sketcher.Constraint("Coincident", 8, 3, 0, 3),
    Sketcher.Constraint("Coincident", 42, 3, 0, 3),
    Sketcher.Constraint("Coincident", 44, 3, 0, 3),
    Sketcher.Constraint("Coincident", 46, 3, 0, 3),
    Sketcher.Constraint("Coincident", 48, 3, 0, 3),
    Sketcher.Constraint("Coincident", 50, 3, 0, 3),
    Sketcher.Constraint("Coincident", 52, 3, 0, 3),
    Sketcher.Constraint("Equal", 8, 9),
    Sketcher.Constraint("Equal", 9, 11),
    Sketcher.Constraint("Equal", 24, 26),
    Sketcher.Constraint("Equal", 26, 28),
    Sketcher.Constraint("Equal", 28, 30),
    Sketcher.Constraint("Equal", 30, 32),
    Sketcher.Constraint("Equal", 32, 34),
    Sketcher.Constraint("Equal", 34, 36),
    Sketcher.Constraint("Equal", 36, 38),
    Sketcher.Constraint("Equal", 38, 40),
    Sketcher.Constraint("Equal", 22, 42),
    Sketcher.Constraint("Equal", 40, 43),
    Sketcher.Constraint("Equal", 42, 44),
    Sketcher.Constraint("Equal", 43, 45),
    Sketcher.Constraint("Equal", 44, 46),
    Sketcher.Constraint("Equal", 45, 47),
    Sketcher.Constraint("Equal", 46, 48),
    Sketcher.Constraint("Equal", 47, 49),
    Sketcher.Constraint("Equal", 48, 50),
    Sketcher.Constraint("Equal", 49, 51),
    Sketcher.Constraint("Equal", 50, 52),
    Sketcher.Constraint("Equal", 51, 54),
    Sketcher.Constraint("Equal", 54, 56),
    Sketcher.Constraint("Equal", 56, 58),
    Sketcher.Constraint("Equal", 58, 60),
    Sketcher.Constraint("Equal", 60, 62),
    Sketcher.Constraint("Equal", 62, 64),
    Sketcher.Constraint("Equal", 64, 66),
    Sketcher.Constraint("Equal", 66, 68),
    Sketcher.Constraint("Equal", 68, 70),
    Sketcher.Constraint("Equal", 52, 72),
    Sketcher.Constraint("Equal", 70, 73),
    Sketcher.Constraint("Equal", 72, 74),
    Sketcher.Constraint("Equal", 73, 75),
    Sketcher.Constraint("Equal", 74, 76),
    Sketcher.Constraint("Equal", 75, 77),
    Sketcher.Constraint("Equal", 76, 78),
    Sketcher.Constraint("Equal", 77, 79),
    Sketcher.Constraint("Equal", 78, 80),
    Sketcher.Constraint("Equal", 79, 81),
    Sketcher.Constraint("Symmetric", 24, 3, 73, 3, -1, 1),
    Sketcher.Constraint("Symmetric", 70, 3, 81, 3, -1, 1),
    Sketcher.Constraint("Symmetric", 70, 3, 73, 3, -2),
    Sketcher.Constraint("Symmetric", 45, 3, 49, 3, -1),
    Sketcher.Constraint("Symmetric", 43, 3, 51, 3, -1),
    Sketcher.Constraint("Symmetric", 40, 3, 54, 3, -1),
    Sketcher.Constraint("Symmetric", 38, 3, 56, 3, -1),
    Sketcher.Constraint("Symmetric", 36, 3, 58, 3, -1),
    Sketcher.Constraint("Symmetric", 34, 3, 60, 3, -1),
    Sketcher.Constraint("Symmetric", 32, 3, 62, 3, -1),
    Sketcher.Constraint("Symmetric", 30, 3, 64, 3, -1),
    Sketcher.Constraint("Symmetric", 28, 3, 66, 3, -1),
    Sketcher.Constraint("Symmetric", 26, 3, 68, 3, -1),
    Sketcher.Constraint("Symmetric", 75, 3, 79, 3, -1),
    Sketcher.Constraint("PointOnObject", 47, 3, -1),
    Sketcher.Constraint("PointOnObject", 77, 3, -1),
    Sketcher.Constraint("Horizontal", 24, 3, 26, 3),
    Sketcher.Constraint("Horizontal", 26, 3, 28, 3),
    Sketcher.Constraint("Horizontal", 28, 3, 30, 3),
    Sketcher.Constraint("Horizontal", 30, 3, 32, 3),
    Sketcher.Constraint("Horizontal", 32, 3, 34, 3),
    Sketcher.Constraint("Horizontal", 34, 3, 36, 3),
    Sketcher.Constraint("Horizontal", 36, 3, 38, 3),
    Sketcher.Constraint("Horizontal", 38, 3, 40, 3),
    Sketcher.Constraint("Horizontal", 40, 3, 43, 3),
    Sketcher.Constraint("Horizontal", 49, 3, 75, 3),
    Sketcher.Constraint("Horizontal", 7, 2, 11, 2),
    Sketcher.Constraint("Horizontal", 6, 2, 12, 2),
    Sketcher.Constraint("Horizontal", 5, 2, 13, 2),
    Sketcher.Constraint("Horizontal", 4, 2, 14, 2),
    Sketcher.Constraint("Horizontal", 3, 2, 15, 2),
    Sketcher.Constraint("Horizontal", 2, 2, 16, 2),
    Sketcher.Constraint("Horizontal", 1, 2, 17, 2),
    Sketcher.Constraint("Horizontal", 0, 2, 18, 2),
    Sketcher.Constraint("Horizontal", 23, 2, 24, 2),
    Sketcher.Constraint("Horizontal", 25, 2, 26, 2),
    Sketcher.Constraint("Horizontal", 27, 2, 28, 2),
    Sketcher.Constraint("Horizontal", 29, 2, 30, 2),
    Sketcher.Constraint("Horizontal", 31, 2, 32, 2),
    Sketcher.Constraint("Horizontal", 33, 2, 34, 2),
    Sketcher.Constraint("Horizontal", 35, 2, 36, 2),
    Sketcher.Constraint("Horizontal", 37, 2, 38, 2),
    Sketcher.Constraint("Horizontal", 53, 2, 54, 2),
    Sketcher.Constraint("Horizontal", 55, 2, 56, 2),
    Sketcher.Constraint("Horizontal", 57, 2, 58, 2),
    Sketcher.Constraint("Horizontal", 59, 2, 60, 2),
    Sketcher.Constraint("Horizontal", 61, 2, 62, 2),
    Sketcher.Constraint("Horizontal", 63, 2, 64, 2),
    Sketcher.Constraint("Horizontal", 65, 2, 66, 2),
    Sketcher.Constraint("Horizontal", 67, 2, 68, 2),
    Sketcher.Constraint("Horizontal", 51, 2, 72, 1),
    Sketcher.Constraint("Horizontal", 49, 2, 74, 1),
    Sketcher.Constraint("Horizontal", 47, 2, 76, 1),
    Sketcher.Constraint("Vertical", 3, 2, 4, 2),
    Sketcher.Constraint("Vertical", 2, 2, 5, 2),
    Sketcher.Constraint("Vertical", 1, 2, 6, 2),
    Sketcher.Constraint("Vertical", 0, 2, 7, 2),
    Sketcher.Constraint("Vertical", 8, 2, 21, 2),
    Sketcher.Constraint("Equal", 25, 27),
    Sketcher.Constraint("Equal", 27, 29),
    Sketcher.Constraint("Equal", 29, 31),
    Sketcher.Constraint("Equal", 31, 33),
    Sketcher.Constraint("Equal", 33, 35),
    Sketcher.Constraint("Equal", 35, 37),
    Sketcher.Constraint("Equal", 37, 39),
    Sketcher.Constraint("Equal", 23, 41),
    Sketcher.Constraint("Radius", 0, Q("2.031 in")),
    Sketcher.Constraint("Radius", 22, Q("1.875 in")),
    Sketcher.Constraint("DistanceX", 77, 3, -1, 1, Q("1.875 in")),
    Sketcher.Constraint("Radius", 24, Q("8.372023 mm")),
    Sketcher.Constraint("DistanceX", -1, 1, 40, 3, Q("253.926899 mm")),
    Sketcher.Constraint("DistanceX", 10, 2, 10, 1, Q("268.643833 mm")),
    Sketcher.Constraint("DistanceX", 23, 1, 23, 2, Q("6.675945 mm")),
    Sketcher.Constraint("DistanceX", -1, 1, 2, 2, Q("314.416072 mm")),
    Sketcher.Constraint("DistanceX", -1, 1, 3, 2, Q("319.660208 mm")),
    Sketcher.Constraint("DistanceX", 12, 2, -1, 1, Q("36.77399 mm")),
    Sketcher.Constraint("DistanceY", -1, 1, 44, 1, Q("34.307639 mm")),
    Sketcher.Constraint("DistanceX", -1, 1, 45, 2, Q("311.47985 mm")),
    Sketcher.Constraint("DistanceX", -1, 1, 0, 2, Q("291.688496 mm")),
    Sketcher.Constraint("DistanceX", -1, 1, 8, 2, Q("277.129024 mm")),
])
pad1 = body.newObject("PartDesign::Pad", "Pad")
pad1.Profile = sketch1
pad1.Length = Q("1 in")

doc.recompute()
